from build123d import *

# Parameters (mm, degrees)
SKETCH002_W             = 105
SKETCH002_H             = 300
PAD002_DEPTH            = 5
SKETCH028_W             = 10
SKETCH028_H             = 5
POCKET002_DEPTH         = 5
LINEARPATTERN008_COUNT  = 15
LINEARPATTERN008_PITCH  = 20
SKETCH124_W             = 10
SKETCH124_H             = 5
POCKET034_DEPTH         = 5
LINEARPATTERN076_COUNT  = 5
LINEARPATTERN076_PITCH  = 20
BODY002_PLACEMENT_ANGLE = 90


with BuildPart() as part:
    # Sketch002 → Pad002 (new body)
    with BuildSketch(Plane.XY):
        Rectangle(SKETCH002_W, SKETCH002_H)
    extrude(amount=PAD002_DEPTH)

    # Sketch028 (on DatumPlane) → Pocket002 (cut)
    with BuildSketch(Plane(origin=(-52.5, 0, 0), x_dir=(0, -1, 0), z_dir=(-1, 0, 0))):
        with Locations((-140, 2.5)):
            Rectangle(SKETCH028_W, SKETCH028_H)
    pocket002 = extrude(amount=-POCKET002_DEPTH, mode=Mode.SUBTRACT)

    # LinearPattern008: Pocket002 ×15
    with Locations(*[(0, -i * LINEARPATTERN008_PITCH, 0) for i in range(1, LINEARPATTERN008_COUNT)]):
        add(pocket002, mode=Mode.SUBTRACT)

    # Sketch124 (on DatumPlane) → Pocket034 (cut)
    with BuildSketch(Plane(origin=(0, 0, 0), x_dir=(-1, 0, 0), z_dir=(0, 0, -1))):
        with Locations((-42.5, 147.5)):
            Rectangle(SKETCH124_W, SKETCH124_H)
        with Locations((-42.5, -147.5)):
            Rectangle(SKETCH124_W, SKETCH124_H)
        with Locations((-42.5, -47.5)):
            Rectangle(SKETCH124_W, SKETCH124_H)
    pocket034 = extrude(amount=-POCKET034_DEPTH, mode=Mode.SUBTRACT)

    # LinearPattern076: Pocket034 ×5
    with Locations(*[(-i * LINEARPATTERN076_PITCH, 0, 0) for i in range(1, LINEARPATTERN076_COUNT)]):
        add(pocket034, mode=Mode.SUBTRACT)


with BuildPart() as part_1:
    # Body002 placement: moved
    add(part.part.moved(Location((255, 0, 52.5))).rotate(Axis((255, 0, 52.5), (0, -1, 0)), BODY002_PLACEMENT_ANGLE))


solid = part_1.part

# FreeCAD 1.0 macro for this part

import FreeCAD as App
import Part
import Sketcher
from FreeCAD import Vector

doc = App.newDocument("Part")
body = doc.addObject("PartDesign::Body", "Body")

sketch1 = body.newObject("Sketcher::SketchObject", "Sketch")
sketch1.AttachmentSupport = (doc.getObject("XY_Plane"), [""])
sketch1.MapMode = "FlatFace"
sketch1.addGeometry(Part.LineSegment(Vector(-52, 150, 0), Vector(-52, -150, 0)), False)
sketch1.addGeometry(Part.LineSegment(Vector(-52, -150, 0), Vector(52, -150, 0)), False)
sketch1.addGeometry(Part.LineSegment(Vector(52, -150, 0), Vector(52, 150, 0)), False)
sketch1.addGeometry(Part.LineSegment(Vector(52, 150, 0), Vector(-52, 150, 0)), False)
sketch1.addConstraint(Sketcher.Constraint("Coincident", 0, 2, 1, 1))
sketch1.addConstraint(Sketcher.Constraint("Coincident", 1, 2, 2, 1))
sketch1.addConstraint(Sketcher.Constraint("Coincident", 2, 2, 3, 1))
sketch1.addConstraint(Sketcher.Constraint("Coincident", 3, 2, 0, 1))
sketch1.addConstraint(Sketcher.Constraint("Vertical", 0))
sketch1.addConstraint(Sketcher.Constraint("Horizontal", 1))
sketch1.addConstraint(Sketcher.Constraint("Vertical", 2))
sketch1.addConstraint(Sketcher.Constraint("Horizontal", 3))
sketch1.addConstraint(Sketcher.Constraint("Symmetric", 0, 2, 2, 2, -1, 1))
sketch1.addConstraint(Sketcher.Constraint("DistanceX", 1, 1, 1, 2, 105.0))
sketch1.addConstraint(Sketcher.Constraint("DistanceY", 0, 2, 0, 1, 300.0))
pad1 = body.newObject("PartDesign::Pad", "Pad")
pad1.Profile = sketch1
pad1.Length = 5

sketch2 = body.newObject("Sketcher::SketchObject", "Sketch001")
sketch2.AttachmentSupport = (doc.getObject("YZ_Plane"), [""])
sketch2.MapMode = "FlatFace"
sketch2.AttachmentOffset = App.Placement(Vector(0, 0, -52.5), App.Rotation())
sketch2.addGeometry(Part.LineSegment(Vector(145, 5, 0), Vector(145, 0, 0)), False)
sketch2.addGeometry(Part.LineSegment(Vector(145, 0, 0), Vector(135, 0, 0)), False)
sketch2.addGeometry(Part.LineSegment(Vector(135, 0, 0), Vector(135, 5, 0)), False)
sketch2.addGeometry(Part.LineSegment(Vector(135, 5, 0), Vector(145, 5, 0)), False)
sketch2.addConstraint(Sketcher.Constraint("Coincident", 0, 2, 1, 1))
sketch2.addConstraint(Sketcher.Constraint("Coincident", 1, 2, 2, 1))
sketch2.addConstraint(Sketcher.Constraint("Coincident", 2, 2, 3, 1))
sketch2.addConstraint(Sketcher.Constraint("Coincident", 3, 2, 0, 1))
sketch2.addConstraint(Sketcher.Constraint("Vertical", 0))
sketch2.addConstraint(Sketcher.Constraint("Horizontal", 1))
sketch2.addConstraint(Sketcher.Constraint("Vertical", 2))
sketch2.addConstraint(Sketcher.Constraint("Horizontal", 3))
sketch2.addConstraint(Sketcher.Constraint("PointOnObject", 0, 2, -1))
sketch2.addConstraint(Sketcher.Constraint("DistanceX", 1, 2, 1, 1, 10.0))
sketch2.addConstraint(Sketcher.Constraint("DistanceY", 0, 2, 0, 1, 5.0))
sketch2.addConstraint(Sketcher.Constraint("DistanceX", -1, 1, 0, 2, 145.0))
pocket1 = body.newObject("PartDesign::Pocket", "Pocket")
pocket1.Profile = sketch2
pocket1.Length = 5
pocket1.Reversed = True
doc.recompute()

linearpattern = body.newObject("PartDesign::LinearPattern", "LinearPattern")
linearpattern.Originals = [pocket1]
linearpattern.Direction = (doc.getObject("Y_Axis"), [""])
linearpattern.Mode = "offset"
linearpattern.Offset = 20
linearpattern.Occurrences = 15
linearpattern.Reversed = True
body.Tip = linearpattern

sketch3 = body.newObject("Sketcher::SketchObject", "Sketch002")
sketch3.AttachmentSupport = (doc.getObject("XY_Plane"), [""])
sketch3.MapMode = "FlatFace"
sketch3.addGeometry(Part.LineSegment(Vector(48, 150, 0), Vector(48, 145, 0)), False)
sketch3.addGeometry(Part.LineSegment(Vector(48, 145, 0), Vector(38, 145, 0)), False)
sketch3.addGeometry(Part.LineSegment(Vector(38, 145, 0), Vector(38, 150, 0)), False)
sketch3.addGeometry(Part.LineSegment(Vector(38, 150, 0), Vector(48, 150, 0)), False)
sketch3.addGeometry(Part.LineSegment(Vector(48, -145, 0), Vector(48, -150, 0)), False)
sketch3.addGeometry(Part.LineSegment(Vector(48, -150, 0), Vector(38, -150, 0)), False)
sketch3.addGeometry(Part.LineSegment(Vector(38, -150, 0), Vector(38, -145, 0)), False)
sketch3.addGeometry(Part.LineSegment(Vector(38, -145, 0), Vector(48, -145, 0)), False)
sketch3.addGeometry(Part.LineSegment(Vector(48, -45, 0), Vector(48, -50, 0)), False)
sketch3.addGeometry(Part.LineSegment(Vector(48, -50, 0), Vector(38, -50, 0)), False)
sketch3.addGeometry(Part.LineSegment(Vector(38, -50, 0), Vector(38, -45, 0)), False)
sketch3.addGeometry(Part.LineSegment(Vector(38, -45, 0), Vector(48, -45, 0)), False)
sketch3.addConstraint(Sketcher.Constraint("Coincident", 0, 2, 1, 1))
sketch3.addConstraint(Sketcher.Constraint("Coincident", 1, 2, 2, 1))
sketch3.addConstraint(Sketcher.Constraint("Coincident", 2, 2, 3, 1))
sketch3.addConstraint(Sketcher.Constraint("Coincident", 3, 2, 0, 1))
sketch3.addConstraint(Sketcher.Constraint("Coincident", 4, 2, 5, 1))
sketch3.addConstraint(Sketcher.Constraint("Coincident", 5, 2, 6, 1))
sketch3.addConstraint(Sketcher.Constraint("Coincident", 6, 2, 7, 1))
sketch3.addConstraint(Sketcher.Constraint("Coincident", 7, 2, 4, 1))
sketch3.addConstraint(Sketcher.Constraint("Coincident", 8, 2, 9, 1))
sketch3.addConstraint(Sketcher.Constraint("Coincident", 9, 2, 10, 1))
sketch3.addConstraint(Sketcher.Constraint("Coincident", 10, 2, 11, 1))
sketch3.addConstraint(Sketcher.Constraint("Coincident", 11, 2, 8, 1))
sketch3.addConstraint(Sketcher.Constraint("Vertical", 0))
sketch3.addConstraint(Sketcher.Constraint("Horizontal", 1))
sketch3.addConstraint(Sketcher.Constraint("Vertical", 2))
sketch3.addConstraint(Sketcher.Constraint("Horizontal", 3))
sketch3.addConstraint(Sketcher.Constraint("Vertical", 4))
sketch3.addConstraint(Sketcher.Constraint("Horizontal", 5))
sketch3.addConstraint(Sketcher.Constraint("Vertical", 6))
sketch3.addConstraint(Sketcher.Constraint("Horizontal", 7))
sketch3.addConstraint(Sketcher.Constraint("Vertical", 8))
sketch3.addConstraint(Sketcher.Constraint("Horizontal", 9))
sketch3.addConstraint(Sketcher.Constraint("Vertical", 10))
sketch3.addConstraint(Sketcher.Constraint("Horizontal", 11))
sketch3.addConstraint(Sketcher.Constraint("Symmetric", 3, 2, 4, 2, -1))
sketch3.addConstraint(Sketcher.Constraint("Symmetric", 1, 2, 6, 2, -1))
sketch3.addConstraint(Sketcher.Constraint("Vertical", 7, 2, 8, 2))
sketch3.addConstraint(Sketcher.Constraint("Vertical", 6, 2, 9, 2))
sketch3.addConstraint(Sketcher.Constraint("Equal", 6, 8))
sketch3.addConstraint(Sketcher.Constraint("DistanceX", 1, 2, 1, 1, 10.0))
sketch3.addConstraint(Sketcher.Constraint("DistanceY", 0, 2, 0, 1, 5.0))
sketch3.addConstraint(Sketcher.Constraint("DistanceY", -1, 1, 0, 2, 145.0))
sketch3.addConstraint(Sketcher.Constraint("DistanceY", 8, 2, -1, 1, 50.0))
sketch3.addConstraint(Sketcher.Constraint("DistanceX", -1, 1, 0, 2, 47.5))
pocket2 = body.newObject("PartDesign::Pocket", "Pocket001")
pocket2.Profile = sketch3
pocket2.Length = 5
pocket2.Reversed = True
doc.recompute()

linearpattern2 = body.newObject("PartDesign::LinearPattern", "LinearPattern001")
linearpattern2.Originals = [pocket2]
linearpattern2.Direction = (doc.getObject("X_Axis"), [""])
linearpattern2.Mode = "offset"
linearpattern2.Offset = 20
linearpattern2.Occurrences = 5
linearpattern2.Reversed = True
body.Tip = linearpattern2
body2 = doc.addObject("PartDesign::Body", "Body001")
doc.recompute()

body.Placement = App.Placement(Vector(255, 0, 52.5), App.Rotation(Vector(0, -1, 0), 90))
boolean = body2.newObject("PartDesign::Boolean", "Boolean")
boolean.Type = "Fuse"
boolean.addObjects([body])

doc.recompute()
